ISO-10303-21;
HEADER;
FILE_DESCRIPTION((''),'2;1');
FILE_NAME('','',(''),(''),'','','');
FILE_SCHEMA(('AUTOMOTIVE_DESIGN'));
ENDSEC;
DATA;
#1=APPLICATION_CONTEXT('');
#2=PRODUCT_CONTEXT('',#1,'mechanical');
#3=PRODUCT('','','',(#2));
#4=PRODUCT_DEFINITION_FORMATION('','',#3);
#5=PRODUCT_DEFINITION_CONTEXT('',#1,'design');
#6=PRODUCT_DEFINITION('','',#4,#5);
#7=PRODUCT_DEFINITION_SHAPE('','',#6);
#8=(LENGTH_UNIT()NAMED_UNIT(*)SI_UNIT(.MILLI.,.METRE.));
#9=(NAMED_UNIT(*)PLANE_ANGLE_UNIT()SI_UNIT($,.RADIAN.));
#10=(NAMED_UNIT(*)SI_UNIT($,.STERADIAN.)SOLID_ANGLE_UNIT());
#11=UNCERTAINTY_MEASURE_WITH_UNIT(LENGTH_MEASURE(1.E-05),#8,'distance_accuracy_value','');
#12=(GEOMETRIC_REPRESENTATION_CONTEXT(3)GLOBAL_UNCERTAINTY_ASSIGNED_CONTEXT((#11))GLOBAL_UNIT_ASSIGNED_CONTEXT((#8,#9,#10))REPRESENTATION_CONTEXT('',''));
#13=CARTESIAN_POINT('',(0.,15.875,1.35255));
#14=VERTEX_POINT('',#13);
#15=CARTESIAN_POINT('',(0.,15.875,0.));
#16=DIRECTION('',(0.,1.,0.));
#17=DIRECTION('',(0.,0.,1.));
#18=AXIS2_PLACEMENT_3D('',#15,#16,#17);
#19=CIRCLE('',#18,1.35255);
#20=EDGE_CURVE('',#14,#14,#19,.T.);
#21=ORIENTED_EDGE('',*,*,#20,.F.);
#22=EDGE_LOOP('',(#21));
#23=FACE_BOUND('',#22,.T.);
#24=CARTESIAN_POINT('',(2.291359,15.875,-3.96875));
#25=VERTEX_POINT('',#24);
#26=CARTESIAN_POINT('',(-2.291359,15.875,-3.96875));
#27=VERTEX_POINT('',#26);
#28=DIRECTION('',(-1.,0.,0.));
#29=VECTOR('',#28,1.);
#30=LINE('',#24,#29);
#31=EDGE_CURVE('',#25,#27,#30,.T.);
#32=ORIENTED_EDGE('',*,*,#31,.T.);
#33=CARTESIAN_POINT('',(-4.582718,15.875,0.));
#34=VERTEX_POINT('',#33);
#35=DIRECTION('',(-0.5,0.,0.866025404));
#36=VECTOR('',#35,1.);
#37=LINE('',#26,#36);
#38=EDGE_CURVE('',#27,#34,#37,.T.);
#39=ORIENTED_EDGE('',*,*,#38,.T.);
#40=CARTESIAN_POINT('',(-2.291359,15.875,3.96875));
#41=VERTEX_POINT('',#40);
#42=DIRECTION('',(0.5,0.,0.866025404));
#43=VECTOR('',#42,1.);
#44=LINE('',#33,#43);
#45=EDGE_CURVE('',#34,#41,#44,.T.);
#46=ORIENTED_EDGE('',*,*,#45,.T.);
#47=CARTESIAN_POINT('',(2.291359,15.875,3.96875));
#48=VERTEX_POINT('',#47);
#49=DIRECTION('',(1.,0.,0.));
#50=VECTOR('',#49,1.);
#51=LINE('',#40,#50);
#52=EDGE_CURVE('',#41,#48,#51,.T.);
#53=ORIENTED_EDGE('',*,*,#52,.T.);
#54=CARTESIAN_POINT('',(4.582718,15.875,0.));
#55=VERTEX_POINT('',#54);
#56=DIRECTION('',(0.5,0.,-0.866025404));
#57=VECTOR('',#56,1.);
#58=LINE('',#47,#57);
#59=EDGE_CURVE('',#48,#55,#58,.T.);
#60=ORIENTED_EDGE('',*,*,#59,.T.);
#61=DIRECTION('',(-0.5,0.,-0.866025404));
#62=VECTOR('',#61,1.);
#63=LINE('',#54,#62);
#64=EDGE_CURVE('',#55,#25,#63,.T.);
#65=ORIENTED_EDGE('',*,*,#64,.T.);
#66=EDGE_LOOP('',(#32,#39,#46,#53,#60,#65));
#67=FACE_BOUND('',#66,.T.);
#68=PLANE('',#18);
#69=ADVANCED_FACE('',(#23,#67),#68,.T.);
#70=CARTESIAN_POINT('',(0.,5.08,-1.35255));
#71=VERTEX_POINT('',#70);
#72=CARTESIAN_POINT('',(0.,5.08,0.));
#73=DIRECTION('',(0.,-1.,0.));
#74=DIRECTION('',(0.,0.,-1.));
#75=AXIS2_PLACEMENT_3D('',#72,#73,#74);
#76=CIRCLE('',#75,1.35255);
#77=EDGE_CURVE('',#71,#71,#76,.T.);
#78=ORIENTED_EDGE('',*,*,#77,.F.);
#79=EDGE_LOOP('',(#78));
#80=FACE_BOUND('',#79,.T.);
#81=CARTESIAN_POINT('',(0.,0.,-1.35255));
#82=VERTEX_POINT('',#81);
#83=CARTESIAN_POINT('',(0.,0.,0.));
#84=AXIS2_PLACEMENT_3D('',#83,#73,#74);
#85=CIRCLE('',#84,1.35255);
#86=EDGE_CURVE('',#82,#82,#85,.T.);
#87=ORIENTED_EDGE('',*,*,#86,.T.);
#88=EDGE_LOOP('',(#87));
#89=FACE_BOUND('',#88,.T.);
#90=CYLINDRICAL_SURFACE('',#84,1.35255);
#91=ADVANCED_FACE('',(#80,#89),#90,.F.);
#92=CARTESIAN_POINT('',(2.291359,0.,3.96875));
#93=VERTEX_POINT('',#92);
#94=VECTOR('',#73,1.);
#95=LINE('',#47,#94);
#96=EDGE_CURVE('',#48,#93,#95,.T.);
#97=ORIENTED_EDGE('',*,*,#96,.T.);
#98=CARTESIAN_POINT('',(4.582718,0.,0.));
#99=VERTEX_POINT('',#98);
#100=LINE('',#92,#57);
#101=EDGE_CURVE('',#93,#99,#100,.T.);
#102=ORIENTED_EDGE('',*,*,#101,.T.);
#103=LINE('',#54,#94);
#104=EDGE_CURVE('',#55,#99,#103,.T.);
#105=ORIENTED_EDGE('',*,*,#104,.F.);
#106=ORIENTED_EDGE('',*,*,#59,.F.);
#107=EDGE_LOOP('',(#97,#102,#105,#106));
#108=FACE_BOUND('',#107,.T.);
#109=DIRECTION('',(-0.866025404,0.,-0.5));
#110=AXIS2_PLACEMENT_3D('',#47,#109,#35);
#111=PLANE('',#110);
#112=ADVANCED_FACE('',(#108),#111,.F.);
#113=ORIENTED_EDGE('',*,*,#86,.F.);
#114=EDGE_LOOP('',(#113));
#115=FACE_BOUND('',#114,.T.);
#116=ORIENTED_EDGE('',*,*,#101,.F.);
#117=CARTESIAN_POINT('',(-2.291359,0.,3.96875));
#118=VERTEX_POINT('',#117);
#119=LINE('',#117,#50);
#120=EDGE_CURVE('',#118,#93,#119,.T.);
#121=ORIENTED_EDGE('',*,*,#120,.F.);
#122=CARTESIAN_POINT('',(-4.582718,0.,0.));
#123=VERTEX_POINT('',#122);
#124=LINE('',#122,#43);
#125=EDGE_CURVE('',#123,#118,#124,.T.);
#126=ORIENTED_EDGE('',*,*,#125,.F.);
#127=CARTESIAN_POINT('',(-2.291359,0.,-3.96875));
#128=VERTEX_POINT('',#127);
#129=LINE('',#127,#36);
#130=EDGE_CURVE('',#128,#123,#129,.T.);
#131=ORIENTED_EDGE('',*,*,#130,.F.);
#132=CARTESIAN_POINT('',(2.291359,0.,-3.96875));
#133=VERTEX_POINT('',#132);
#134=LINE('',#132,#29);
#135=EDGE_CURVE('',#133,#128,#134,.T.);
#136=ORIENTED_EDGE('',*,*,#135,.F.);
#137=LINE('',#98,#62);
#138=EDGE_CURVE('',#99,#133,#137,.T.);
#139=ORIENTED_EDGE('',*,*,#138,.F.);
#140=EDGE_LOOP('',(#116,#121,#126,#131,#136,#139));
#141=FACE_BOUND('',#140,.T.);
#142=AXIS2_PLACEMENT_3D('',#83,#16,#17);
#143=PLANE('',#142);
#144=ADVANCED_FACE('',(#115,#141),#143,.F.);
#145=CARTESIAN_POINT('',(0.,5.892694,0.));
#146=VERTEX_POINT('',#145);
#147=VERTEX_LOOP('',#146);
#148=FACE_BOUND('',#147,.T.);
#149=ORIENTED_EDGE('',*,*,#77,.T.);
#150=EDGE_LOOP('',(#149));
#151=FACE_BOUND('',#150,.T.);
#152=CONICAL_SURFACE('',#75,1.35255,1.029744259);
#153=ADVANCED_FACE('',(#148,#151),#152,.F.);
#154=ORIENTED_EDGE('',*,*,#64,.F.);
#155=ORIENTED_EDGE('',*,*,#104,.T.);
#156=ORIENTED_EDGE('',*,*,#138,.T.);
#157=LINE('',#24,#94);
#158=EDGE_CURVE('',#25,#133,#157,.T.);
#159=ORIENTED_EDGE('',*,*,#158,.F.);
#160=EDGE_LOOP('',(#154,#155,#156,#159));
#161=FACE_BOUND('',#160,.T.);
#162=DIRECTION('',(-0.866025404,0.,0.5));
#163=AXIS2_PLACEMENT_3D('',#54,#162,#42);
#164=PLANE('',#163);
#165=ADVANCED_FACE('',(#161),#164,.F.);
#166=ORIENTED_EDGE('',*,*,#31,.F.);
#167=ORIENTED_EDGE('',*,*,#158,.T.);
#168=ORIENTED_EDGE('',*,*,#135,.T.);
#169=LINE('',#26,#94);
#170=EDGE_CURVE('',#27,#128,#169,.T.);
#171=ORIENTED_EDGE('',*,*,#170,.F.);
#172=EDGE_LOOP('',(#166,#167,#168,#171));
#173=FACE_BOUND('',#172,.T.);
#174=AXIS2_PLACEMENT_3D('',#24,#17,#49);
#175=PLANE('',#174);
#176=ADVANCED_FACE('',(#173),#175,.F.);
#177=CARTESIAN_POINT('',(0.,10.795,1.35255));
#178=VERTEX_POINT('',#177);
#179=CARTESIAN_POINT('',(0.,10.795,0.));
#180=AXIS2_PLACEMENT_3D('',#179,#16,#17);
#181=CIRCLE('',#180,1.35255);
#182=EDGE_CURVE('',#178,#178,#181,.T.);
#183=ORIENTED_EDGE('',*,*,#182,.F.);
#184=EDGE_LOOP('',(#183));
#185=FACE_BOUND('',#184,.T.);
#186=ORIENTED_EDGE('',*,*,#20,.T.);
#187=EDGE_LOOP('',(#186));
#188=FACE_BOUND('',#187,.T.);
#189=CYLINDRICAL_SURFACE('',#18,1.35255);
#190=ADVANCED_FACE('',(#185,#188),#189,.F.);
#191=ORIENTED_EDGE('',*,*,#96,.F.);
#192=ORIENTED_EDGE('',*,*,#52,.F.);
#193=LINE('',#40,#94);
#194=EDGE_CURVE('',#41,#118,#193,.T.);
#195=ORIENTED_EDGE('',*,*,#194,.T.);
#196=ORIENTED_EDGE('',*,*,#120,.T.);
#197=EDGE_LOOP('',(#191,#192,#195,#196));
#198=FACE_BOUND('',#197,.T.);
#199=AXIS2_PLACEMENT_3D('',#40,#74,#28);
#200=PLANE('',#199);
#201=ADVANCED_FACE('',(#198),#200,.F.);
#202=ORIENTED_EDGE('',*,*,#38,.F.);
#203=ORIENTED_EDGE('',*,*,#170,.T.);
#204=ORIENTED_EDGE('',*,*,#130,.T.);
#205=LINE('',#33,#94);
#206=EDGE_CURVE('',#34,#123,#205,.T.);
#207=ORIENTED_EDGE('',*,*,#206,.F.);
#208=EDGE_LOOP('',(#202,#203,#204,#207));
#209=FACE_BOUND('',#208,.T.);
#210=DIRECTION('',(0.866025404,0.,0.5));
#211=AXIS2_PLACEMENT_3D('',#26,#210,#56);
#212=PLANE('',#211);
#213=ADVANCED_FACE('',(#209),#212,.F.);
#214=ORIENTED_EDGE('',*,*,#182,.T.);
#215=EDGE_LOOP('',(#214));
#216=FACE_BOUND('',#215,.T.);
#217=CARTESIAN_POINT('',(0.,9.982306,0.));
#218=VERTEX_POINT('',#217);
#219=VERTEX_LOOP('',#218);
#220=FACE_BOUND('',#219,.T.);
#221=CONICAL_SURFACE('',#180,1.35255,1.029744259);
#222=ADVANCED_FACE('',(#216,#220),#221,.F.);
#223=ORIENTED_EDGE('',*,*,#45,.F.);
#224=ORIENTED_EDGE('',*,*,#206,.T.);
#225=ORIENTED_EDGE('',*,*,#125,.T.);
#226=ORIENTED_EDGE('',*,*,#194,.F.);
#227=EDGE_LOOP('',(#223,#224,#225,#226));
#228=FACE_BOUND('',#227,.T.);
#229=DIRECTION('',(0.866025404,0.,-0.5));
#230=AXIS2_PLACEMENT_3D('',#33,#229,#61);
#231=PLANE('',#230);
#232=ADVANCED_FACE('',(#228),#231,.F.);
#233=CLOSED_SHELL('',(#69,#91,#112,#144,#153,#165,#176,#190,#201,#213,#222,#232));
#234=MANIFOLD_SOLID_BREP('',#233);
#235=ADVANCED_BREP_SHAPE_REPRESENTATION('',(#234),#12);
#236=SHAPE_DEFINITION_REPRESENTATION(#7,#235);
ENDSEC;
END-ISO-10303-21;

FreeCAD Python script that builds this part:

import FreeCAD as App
import Part
import Sketcher

V = App.Vector
Q = App.Units.Quantity


def add_polygon(sketch, points):
    """Adds a closed chain of lines whose ends are joined by coincident constraints."""
    first, n = sketch.GeometryCount, len(points)
    for a, b in zip(points, points[1:] + points[:1]):
        sketch.addGeometry(Part.LineSegment(App.Vector(*a, 0), App.Vector(*b, 0)), False)
    for i in range(n):
        sketch.addConstraint(Sketcher.Constraint("Coincident", first + i, 2, first + (i + 1) % n, 1))

doc = App.newDocument("Part")
body = doc.addObject("PartDesign::Body", "Body")

sketch1 = body.newObject("Sketcher::SketchObject", "Sketch")
sketch1.AttachmentSupport = (doc.getObject("XZ_Plane"), [""])
sketch1.MapMode = "FlatFace"
add_polygon(sketch1, [(4.6, 0), (2.3, -4), (-2.3, -4), (-4.6, 0), (-2.3, 4), (2.3, 4)])
sketch1.addConstraint([
    Sketcher.Constraint("Horizontal", 1),
    Sketcher.Constraint("Horizontal", 4),
    Sketcher.Constraint("Symmetric", 0, 2, 3, 2, -1, 1),
    Sketcher.Constraint("Symmetric", 2, 2, 5, 2, -1, 1),
    Sketcher.Constraint("PointOnObject", 2, 2, -1),
    Sketcher.Constraint("Parallel", 2, 5),
    Sketcher.Constraint("Vertical", 1, 2, 3, 2),
    Sketcher.Constraint("Angle", 0, Q("-120 deg")),
    Sketcher.Constraint("DistanceY", 0, 2, -1, 1, Q("0.15625 in")),
    Sketcher.Constraint("DistanceX", 1, 2, 1, 1, Q("4.582718 mm")),
])
pad1 = body.newObject("PartDesign::Pad", "Pad")
pad1.Profile = sketch1
pad1.Length = Q("0.625 in")
pad1.Reversed = True

sketch2 = body.newObject("Sketcher::SketchObject", "Sketch001")
sketch2.AttachmentSupport = (doc.getObject("XZ_Plane"), [""])
sketch2.MapMode = "FlatFace"
sketch2.addGeometry(Part.Circle(V(0, 0, 0), V(0, 0, 1), 1.4), False)
sketch2.addConstraint([
    Sketcher.Constraint("Coincident", 0, 3, -1, 1),
    Sketcher.Constraint("Diameter", 0, Q("0.1065 in")),
])
doc.recompute()
hole = body.newObject("PartDesign::Hole", "Hole")
hole.Profile = sketch2
hole.ThreadType = "None"
hole.Diameter = Q("0.1065 in")
hole.DepthType = "Dimension"
hole.Depth = Q("0.2 in")
hole.DrillPoint = "Angled"
hole.DrillPointAngle = 118

sketch3 = body.newObject("Sketcher::SketchObject", "Sketch002")
sketch3.AttachmentSupport = (doc.getObject("XZ_Plane"), [""])
sketch3.MapMode = "FlatFace"
sketch3.AttachmentOffset = App.Placement(V(0, 0, -0.625 * 25.4), App.Rotation())
sketch3.addGeometry(Part.Circle(V(0, 0, 0), V(0, 0, 1), 1.4), False)
sketch3.addConstraint([
    Sketcher.Constraint("Coincident", 0, 3, -1, 1),
    Sketcher.Constraint("Diameter", 0, Q("0.1065 in")),
])
doc.recompute()
hole2 = body.newObject("PartDesign::Hole", "Hole001")
hole2.Profile = sketch3
hole2.ThreadType = "None"
hole2.Diameter = Q("0.1065 in")
hole2.DepthType = "Dimension"
hole2.Depth = Q("0.2 in")
hole2.DrillPoint = "Angled"
hole2.DrillPointAngle = 118
hole2.Reversed = True

doc.recompute()
